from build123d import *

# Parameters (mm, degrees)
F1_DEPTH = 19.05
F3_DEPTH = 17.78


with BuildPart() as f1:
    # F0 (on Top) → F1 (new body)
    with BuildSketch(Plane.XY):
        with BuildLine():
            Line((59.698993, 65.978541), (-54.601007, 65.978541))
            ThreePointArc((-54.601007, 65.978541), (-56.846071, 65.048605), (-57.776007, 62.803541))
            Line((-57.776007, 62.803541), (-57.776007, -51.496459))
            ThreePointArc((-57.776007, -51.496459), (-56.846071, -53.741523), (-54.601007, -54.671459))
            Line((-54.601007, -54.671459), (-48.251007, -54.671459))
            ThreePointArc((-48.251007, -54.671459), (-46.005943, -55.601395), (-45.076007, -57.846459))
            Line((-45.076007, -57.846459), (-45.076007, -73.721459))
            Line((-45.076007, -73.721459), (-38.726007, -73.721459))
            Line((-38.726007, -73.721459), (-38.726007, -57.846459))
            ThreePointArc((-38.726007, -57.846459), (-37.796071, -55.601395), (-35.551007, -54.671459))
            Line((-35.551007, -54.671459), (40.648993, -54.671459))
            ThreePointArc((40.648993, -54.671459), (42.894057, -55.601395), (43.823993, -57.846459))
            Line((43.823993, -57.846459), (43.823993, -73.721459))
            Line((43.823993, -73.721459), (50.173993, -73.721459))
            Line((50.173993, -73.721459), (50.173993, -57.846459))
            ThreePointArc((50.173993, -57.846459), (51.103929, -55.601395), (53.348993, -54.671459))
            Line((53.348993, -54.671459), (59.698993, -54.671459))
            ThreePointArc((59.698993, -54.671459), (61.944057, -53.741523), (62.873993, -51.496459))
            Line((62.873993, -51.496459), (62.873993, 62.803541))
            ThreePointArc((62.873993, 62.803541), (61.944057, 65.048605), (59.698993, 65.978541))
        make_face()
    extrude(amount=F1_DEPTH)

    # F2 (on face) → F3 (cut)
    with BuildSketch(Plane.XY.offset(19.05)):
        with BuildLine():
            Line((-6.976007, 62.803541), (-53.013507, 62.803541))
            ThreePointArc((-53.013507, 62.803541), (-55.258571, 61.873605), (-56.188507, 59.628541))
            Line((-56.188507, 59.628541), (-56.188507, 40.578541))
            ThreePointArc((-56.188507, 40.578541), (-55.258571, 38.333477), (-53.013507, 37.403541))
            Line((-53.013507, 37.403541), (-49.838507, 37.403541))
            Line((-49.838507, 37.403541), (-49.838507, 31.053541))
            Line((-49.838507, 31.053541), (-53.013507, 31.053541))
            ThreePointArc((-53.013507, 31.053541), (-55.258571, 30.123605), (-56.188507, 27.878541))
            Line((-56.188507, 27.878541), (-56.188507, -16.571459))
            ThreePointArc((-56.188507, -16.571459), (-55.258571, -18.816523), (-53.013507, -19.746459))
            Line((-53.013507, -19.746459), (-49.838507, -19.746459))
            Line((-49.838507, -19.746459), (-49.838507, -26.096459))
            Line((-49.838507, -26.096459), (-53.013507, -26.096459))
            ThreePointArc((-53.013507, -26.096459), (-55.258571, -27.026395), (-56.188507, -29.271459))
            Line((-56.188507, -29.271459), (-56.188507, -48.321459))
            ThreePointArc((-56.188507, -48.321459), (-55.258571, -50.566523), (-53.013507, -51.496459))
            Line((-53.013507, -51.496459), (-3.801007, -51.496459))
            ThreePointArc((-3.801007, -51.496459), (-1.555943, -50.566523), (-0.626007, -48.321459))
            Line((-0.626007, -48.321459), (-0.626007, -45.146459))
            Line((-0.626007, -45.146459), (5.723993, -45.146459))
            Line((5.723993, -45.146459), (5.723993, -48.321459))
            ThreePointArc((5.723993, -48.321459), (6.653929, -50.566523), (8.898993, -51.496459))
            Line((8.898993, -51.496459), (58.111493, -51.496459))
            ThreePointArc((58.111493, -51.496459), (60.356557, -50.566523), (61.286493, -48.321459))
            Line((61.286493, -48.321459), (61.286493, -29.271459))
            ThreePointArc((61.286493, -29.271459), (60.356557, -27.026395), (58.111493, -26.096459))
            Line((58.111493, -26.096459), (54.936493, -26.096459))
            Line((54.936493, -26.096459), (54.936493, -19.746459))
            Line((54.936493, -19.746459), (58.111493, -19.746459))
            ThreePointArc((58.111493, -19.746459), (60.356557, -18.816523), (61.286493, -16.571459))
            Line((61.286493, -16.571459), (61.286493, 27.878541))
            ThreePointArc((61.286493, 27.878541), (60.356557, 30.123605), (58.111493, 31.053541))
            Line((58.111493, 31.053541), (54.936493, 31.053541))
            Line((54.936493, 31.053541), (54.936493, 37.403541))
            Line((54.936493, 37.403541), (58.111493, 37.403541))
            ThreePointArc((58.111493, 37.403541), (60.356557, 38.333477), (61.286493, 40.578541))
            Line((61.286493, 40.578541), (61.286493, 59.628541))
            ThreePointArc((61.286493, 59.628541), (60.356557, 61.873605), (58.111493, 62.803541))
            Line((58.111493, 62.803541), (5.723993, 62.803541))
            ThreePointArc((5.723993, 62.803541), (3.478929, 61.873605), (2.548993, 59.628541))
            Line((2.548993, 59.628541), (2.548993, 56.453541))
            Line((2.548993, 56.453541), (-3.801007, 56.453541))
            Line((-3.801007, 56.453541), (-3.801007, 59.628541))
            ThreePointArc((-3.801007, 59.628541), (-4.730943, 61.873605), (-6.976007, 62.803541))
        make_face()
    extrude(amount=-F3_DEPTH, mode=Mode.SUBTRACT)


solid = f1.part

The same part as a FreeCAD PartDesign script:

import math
import FreeCAD as App
import Part
import Sketcher

V = App.Vector
Q = App.Units.Quantity

doc = App.newDocument("Part")
body = doc.addObject("PartDesign::Body", "Body")

# Sketch on XY plane
sketch1 = body.newObject("Sketcher::SketchObject", "Sketch")
sketch1.AttachmentSupport = (doc.getObject("XY_Plane"), [""])
sketch1.MapMode = "FlatFace"
sketch1.addGeometry([
    Part.LineSegment(V(59.7, 66, 0), V(-54.6, 66, 0)),  # 0
    Part.ArcOfCircle(Part.Circle(V(-54.6, 62.8, 0), V(0, 0, 1), 3.2), math.radians(90), math.radians(180)),  # 1
    Part.LineSegment(V(-57.8, 62.8, 0), V(-57.8, -51.5, 0)),  # 2
    Part.ArcOfCircle(Part.Circle(V(-54.6, -51.5, 0), V(0, 0, 1), 3.2), math.radians(-180), math.radians(-90)),  # 3
    Part.LineSegment(V(-54.6, -54.7, 0), V(-48.3, -54.7, 0)),  # 4
    Part.ArcOfCircle(Part.Circle(V(-48.3, -57.8, 0), V(0, 0, 1), 3.2), math.radians(0), math.radians(90)),  # 5
    Part.LineSegment(V(-45.1, -57.8, 0), V(-45.1, -73.7, 0)),  # 6
    Part.LineSegment(V(-45.1, -73.7, 0), V(-38.7, -73.7, 0)),  # 7
    Part.LineSegment(V(-38.7, -73.7, 0), V(-38.7, -57.8, 0)),  # 8
    Part.ArcOfCircle(Part.Circle(V(-35.6, -57.8, 0), V(0, 0, 1), 3.2), math.radians(90), math.radians(180)),  # 9
    Part.LineSegment(V(-35.6, -54.7, 0), V(40.6, -54.7, 0)),  # 10
    Part.ArcOfCircle(Part.Circle(V(40.6, -57.8, 0), V(0, 0, 1), 3.2), math.radians(0), math.radians(90)),  # 11
    Part.LineSegment(V(43.8, -57.8, 0), V(43.8, -73.7, 0)),  # 12
    Part.LineSegment(V(43.8, -73.7, 0), V(50.2, -73.7, 0)),  # 13
    Part.LineSegment(V(50.2, -73.7, 0), V(50.2, -57.8, 0)),  # 14
    Part.ArcOfCircle(Part.Circle(V(53.3, -57.8, 0), V(0, 0, 1), 3.2), math.radians(90), math.radians(180)),  # 15
    Part.LineSegment(V(53.3, -54.7, 0), V(59.7, -54.7, 0)),  # 16
    Part.ArcOfCircle(Part.Circle(V(59.7, -51.5, 0), V(0, 0, 1), 3.2), math.radians(-90), math.radians(0)),  # 17
    Part.LineSegment(V(62.9, -51.5, 0), V(62.9, 62.8, 0)),  # 18
    Part.ArcOfCircle(Part.Circle(V(59.7, 62.8, 0), V(0, 0, 1), 3.2), math.radians(0), math.radians(90)),  # 19
], False)
sketch1.addConstraint([
    Sketcher.Constraint("Tangent", 0, 2, 1, 1),
    Sketcher.Constraint("Tangent", 1, 2, 2, 1),
    Sketcher.Constraint("Tangent", 2, 2, 3, 1),
    Sketcher.Constraint("Tangent", 3, 2, 4, 1),
    Sketcher.Constraint("Tangent", 4, 2, 5, 2),
    Sketcher.Constraint("Tangent", 5, 1, 6, 1),
    Sketcher.Constraint("Coincident", 6, 2, 7, 1),
    Sketcher.Constraint("Coincident", 7, 2, 8, 1),
    Sketcher.Constraint("Tangent", 8, 2, 9, 2),
    Sketcher.Constraint("Tangent", 9, 1, 10, 1),
    Sketcher.Constraint("Tangent", 10, 2, 11, 2),
    Sketcher.Constraint("Tangent", 11, 1, 12, 1),
    Sketcher.Constraint("Coincident", 12, 2, 13, 1),
    Sketcher.Constraint("Coincident", 13, 2, 14, 1),
    Sketcher.Constraint("Tangent", 14, 2, 15, 2),
    Sketcher.Constraint("Tangent", 15, 1, 16, 1),
    Sketcher.Constraint("Tangent", 16, 2, 17, 1),
    Sketcher.Constraint("Tangent", 17, 2, 18, 1),
    Sketcher.Constraint("Tangent", 18, 2, 19, 1),
    Sketcher.Constraint("Tangent", 19, 2, 0, 1),
    Sketcher.Constraint("Horizontal", 0),
    Sketcher.Constraint("Vertical", 2),
    Sketcher.Constraint("Horizontal", 4),
    Sketcher.Constraint("Vertical", 6),
    Sketcher.Constraint("Horizontal", 7),
    Sketcher.Constraint("Vertical", 8),
    Sketcher.Constraint("Horizontal", 10),
    Sketcher.Constraint("Vertical", 12),
    Sketcher.Constraint("Horizontal", 13),
    Sketcher.Constraint("Vertical", 14),
    Sketcher.Constraint("Horizontal", 16),
    Sketcher.Constraint("Vertical", 18),
    Sketcher.Constraint("Equal", 1, 3),
    Sketcher.Constraint("Equal", 3, 5),
    Sketcher.Constraint("Equal", 5, 9),
    Sketcher.Constraint("Equal", 9, 11),
    Sketcher.Constraint("Equal", 11, 15),
    Sketcher.Constraint("Equal", 15, 17),
    Sketcher.Constraint("Equal", 17, 19),
    Sketcher.Constraint("Horizontal", 5, 3, 9, 3),
    Sketcher.Constraint("Horizontal", 11, 3, 15, 3),
    Sketcher.Constraint("Horizontal", 7, 2, 12, 2),
    Sketcher.Constraint("Equal", 4, 7),
    Sketcher.Constraint("Equal", 7, 13),
    Sketcher.Constraint("Equal", 13, 16),
    Sketcher.Constraint("Equal", 0, 2),
    Sketcher.Constraint("DistanceX", 10, 1, 10, 2, Q("3 in")),
    Sketcher.Constraint("DistanceX", 0, 2, 0, 1, Q("4.5 in")),
    Sketcher.Constraint("Radius", 1, Q("0.125 in")),
    Sketcher.Constraint("DistanceY", 6, 2, 6, 1, Q("0.625 in")),
    Sketcher.Constraint("DistanceY", -1, 1, 1, 3, 62.803541),
    Sketcher.Constraint("DistanceX", 1, 3, -1, 1, 54.601007),
])
pad1 = body.newObject("PartDesign::Pad", "Pad")
pad1.Profile = sketch1
pad1.Length = Q("0.75 in")

# Sketch on XY plane
sketch2 = body.newObject("Sketcher::SketchObject", "Sketch001")
sketch2.AttachmentSupport = (doc.getObject("XY_Plane"), [""])
sketch2.MapMode = "FlatFace"
sketch2.AttachmentOffset = App.Placement(V(0, 0, 0.75 * 25.4), App.Rotation())
sketch2.addGeometry([
    Part.LineSegment(V(-7, 62.8, 0), V(-53, 62.8, 0)),  # 0
    Part.ArcOfCircle(Part.Circle(V(-53, 59.6, 0), V(0, 0, 1), 3.2), math.radians(90), math.radians(180)),  # 1
    Part.LineSegment(V(-56.2, 59.6, 0), V(-56.2, 40.6, 0)),  # 2
    Part.ArcOfCircle(Part.Circle(V(-53, 40.6, 0), V(0, 0, 1), 3.2), math.radians(-180), math.radians(-90)),  # 3
    Part.LineSegment(V(-53, 37.4, 0), V(-49.8, 37.4, 0)),  # 4
    Part.LineSegment(V(-49.8, 37.4, 0), V(-49.8, 31.1, 0)),  # 5
    Part.LineSegment(V(-49.8, 31.1, 0), V(-53, 31.1, 0)),  # 6
    Part.ArcOfCircle(Part.Circle(V(-53, 27.9, 0), V(0, 0, 1), 3.2), math.radians(90), math.radians(180)),  # 7
    Part.LineSegment(V(-56.2, 27.9, 0), V(-56.2, -16.6, 0)),  # 8
    Part.ArcOfCircle(Part.Circle(V(-53, -16.6, 0), V(0, 0, 1), 3.2), math.radians(-180), math.radians(-90)),  # 9
    Part.LineSegment(V(-53, -19.7, 0), V(-49.8, -19.7, 0)),  # 10
    Part.LineSegment(V(-49.8, -19.7, 0), V(-49.8, -26.1, 0)),  # 11
    Part.LineSegment(V(-49.8, -26.1, 0), V(-53, -26.1, 0)),  # 12
    Part.ArcOfCircle(Part.Circle(V(-53, -29.3, 0), V(0, 0, 1), 3.2), math.radians(90), math.radians(180)),  # 13
    Part.LineSegment(V(-56.2, -29.3, 0), V(-56.2, -48.3, 0)),  # 14
    Part.ArcOfCircle(Part.Circle(V(-53, -48.3, 0), V(0, 0, 1), 3.2), math.radians(-180), math.radians(-90)),  # 15
    Part.LineSegment(V(-53, -51.5, 0), V(-3.8, -51.5, 0)),  # 16
    Part.ArcOfCircle(Part.Circle(V(-3.8, -48.3, 0), V(0, 0, 1), 3.2), math.radians(-90), math.radians(0)),  # 17
    Part.LineSegment(V(-0.6, -48.3, 0), V(-0.6, -45.1, 0)),  # 18
    Part.LineSegment(V(-0.6, -45.1, 0), V(5.7, -45.1, 0)),  # 19
    Part.LineSegment(V(5.7, -45.1, 0), V(5.7, -48.3, 0)),  # 20
    Part.ArcOfCircle(Part.Circle(V(8.9, -48.3, 0), V(0, 0, 1), 3.2), math.radians(-180), math.radians(-90)),  # 21
    Part.LineSegment(V(8.9, -51.5, 0), V(58.1, -51.5, 0)),  # 22
    Part.ArcOfCircle(Part.Circle(V(58.1, -48.3, 0), V(0, 0, 1), 3.2), math.radians(-90), math.radians(0)),  # 23
    Part.LineSegment(V(61.3, -48.3, 0), V(61.3, -29.3, 0)),  # 24
    Part.ArcOfCircle(Part.Circle(V(58.1, -29.3, 0), V(0, 0, 1), 3.2), math.radians(0), math.radians(90)),  # 25
    Part.LineSegment(V(58.1, -26.1, 0), V(54.9, -26.1, 0)),  # 26
    Part.LineSegment(V(54.9, -26.1, 0), V(54.9, -19.7, 0)),  # 27
    Part.LineSegment(V(54.9, -19.7, 0), V(58.1, -19.7, 0)),  # 28
    Part.ArcOfCircle(Part.Circle(V(58.1, -16.6, 0), V(0, 0, 1), 3.2), math.radians(-90), math.radians(0)),  # 29
    Part.LineSegment(V(61.3, -16.6, 0), V(61.3, 27.9, 0)),  # 30
    Part.ArcOfCircle(Part.Circle(V(58.1, 27.9, 0), V(0, 0, 1), 3.2), math.radians(0), math.radians(90)),  # 31
    Part.LineSegment(V(58.1, 31.1, 0), V(54.9, 31.1, 0)),  # 32
    Part.LineSegment(V(54.9, 31.1, 0), V(54.9, 37.4, 0)),  # 33
    Part.LineSegment(V(54.9, 37.4, 0), V(58.1, 37.4, 0)),  # 34
    Part.ArcOfCircle(Part.Circle(V(58.1, 40.6, 0), V(0, 0, 1), 3.2), math.radians(-90), math.radians(0)),  # 35
    Part.LineSegment(V(61.3, 40.6, 0), V(61.3, 59.6, 0)),  # 36
    Part.ArcOfCircle(Part.Circle(V(58.1, 59.6, 0), V(0, 0, 1), 3.2), math.radians(0), math.radians(90)),  # 37
    Part.LineSegment(V(58.1, 62.8, 0), V(5.7, 62.8, 0)),  # 38
    Part.ArcOfCircle(Part.Circle(V(5.7, 59.6, 0), V(0, 0, 1), 3.2), math.radians(90), math.radians(180)),  # 39
    Part.LineSegment(V(2.5, 59.6, 0), V(2.5, 56.5, 0)),  # 40
    Part.LineSegment(V(2.5, 56.5, 0), V(-3.8, 56.5, 0)),  # 41
    Part.LineSegment(V(-3.8, 56.5, 0), V(-3.8, 59.6, 0)),  # 42
    Part.ArcOfCircle(Part.Circle(V(-7, 59.6, 0), V(0, 0, 1), 3.2), math.radians(0), math.radians(90)),  # 43
], False)
sketch2.addConstraint([
    Sketcher.Constraint("Tangent", 0, 2, 1, 1),
    Sketcher.Constraint("Tangent", 1, 2, 2, 1),
    Sketcher.Constraint("Tangent", 2, 2, 3, 1),
    Sketcher.Constraint("Tangent", 3, 2, 4, 1),
    Sketcher.Constraint("Coincident", 4, 2, 5, 1),
    Sketcher.Constraint("Coincident", 5, 2, 6, 1),
    Sketcher.Constraint("Tangent", 6, 2, 7, 1),
    Sketcher.Constraint("Tangent", 7, 2, 8, 1),
    Sketcher.Constraint("Tangent", 8, 2, 9, 1),
    Sketcher.Constraint("Tangent", 9, 2, 10, 1),
    Sketcher.Constraint("Coincident", 10, 2, 11, 1),
    Sketcher.Constraint("Coincident", 11, 2, 12, 1),
    Sketcher.Constraint("Tangent", 12, 2, 13, 1),
    Sketcher.Constraint("Tangent", 13, 2, 14, 1),
    Sketcher.Constraint("Tangent", 14, 2, 15, 1),
    Sketcher.Constraint("Tangent", 15, 2, 16, 1),
    Sketcher.Constraint("Tangent", 16, 2, 17, 1),
    Sketcher.Constraint("Tangent", 17, 2, 18, 1),
    Sketcher.Constraint("Coincident", 18, 2, 19, 1),
    Sketcher.Constraint("Coincident", 19, 2, 20, 1),
    Sketcher.Constraint("Tangent", 20, 2, 21, 1),
    Sketcher.Constraint("Tangent", 21, 2, 22, 1),
    Sketcher.Constraint("Tangent", 22, 2, 23, 1),
    Sketcher.Constraint("Tangent", 23, 2, 24, 1),
    Sketcher.Constraint("Tangent", 24, 2, 25, 1),
    Sketcher.Constraint("Tangent", 25, 2, 26, 1),
    Sketcher.Constraint("Coincident", 26, 2, 27, 1),
    Sketcher.Constraint("Coincident", 27, 2, 28, 1),
    Sketcher.Constraint("Tangent", 28, 2, 29, 1),
    Sketcher.Constraint("Tangent", 29, 2, 30, 1),
    Sketcher.Constraint("Tangent", 30, 2, 31, 1),
    Sketcher.Constraint("Tangent", 31, 2, 32, 1),
    Sketcher.Constraint("Coincident", 32, 2, 33, 1),
    Sketcher.Constraint("Coincident", 33, 2, 34, 1),
    Sketcher.Constraint("Tangent", 34, 2, 35, 1),
    Sketcher.Constraint("Tangent", 35, 2, 36, 1),
    Sketcher.Constraint("Tangent", 36, 2, 37, 1),
    Sketcher.Constraint("Tangent", 37, 2, 38, 1),
    Sketcher.Constraint("Tangent", 38, 2, 39, 1),
    Sketcher.Constraint("Tangent", 39, 2, 40, 1),
    Sketcher.Constraint("Coincident", 40, 2, 41, 1),
    Sketcher.Constraint("Coincident", 41, 2, 42, 1),
    Sketcher.Constraint("Tangent", 42, 2, 43, 1),
    Sketcher.Constraint("Tangent", 43, 2, 0, 1),
    Sketcher.Constraint("Horizontal", 0),
    Sketcher.Constraint("Vertical", 2),
    Sketcher.Constraint("Horizontal", 4),
    Sketcher.Constraint("Vertical", 5),
    Sketcher.Constraint("Horizontal", 6),
    Sketcher.Constraint("Vertical", 8),
    Sketcher.Constraint("Horizontal", 10),
    Sketcher.Constraint("Vertical", 11),
    Sketcher.Constraint("Horizontal", 12),
    Sketcher.Constraint("Vertical", 14),
    Sketcher.Constraint("Horizontal", 16),
    Sketcher.Constraint("Vertical", 18),
    Sketcher.Constraint("Horizontal", 19),
    Sketcher.Constraint("Vertical", 20),
    Sketcher.Constraint("Horizontal", 22),
    Sketcher.Constraint("Vertical", 24),
    Sketcher.Constraint("Horizontal", 26),
    Sketcher.Constraint("Vertical", 27),
    Sketcher.Constraint("Horizontal", 28),
    Sketcher.Constraint("Vertical", 30),
    Sketcher.Constraint("Horizontal", 32),
    Sketcher.Constraint("Vertical", 33),
    Sketcher.Constraint("Horizontal", 34),
    Sketcher.Constraint("Vertical", 36),
    Sketcher.Constraint("Horizontal", 38),
    Sketcher.Constraint("Vertical", 40),
    Sketcher.Constraint("Horizontal", 41),
    Sketcher.Constraint("Vertical", 42),
    Sketcher.Constraint("Equal", 1, 3),
    Sketcher.Constraint("Equal", 3, 7),
    Sketcher.Constraint("Equal", 7, 9),
    Sketcher.Constraint("Equal", 9, 13),
    Sketcher.Constraint("Equal", 13, 15),
    Sketcher.Constraint("Equal", 15, 17),
    Sketcher.Constraint("Equal", 17, 21),
    Sketcher.Constraint("Equal", 21, 23),
    Sketcher.Constraint("Equal", 23, 25),
    Sketcher.Constraint("Equal", 25, 29),
    Sketcher.Constraint("Equal", 29, 31),
    Sketcher.Constraint("Equal", 31, 35),
    Sketcher.Constraint("Equal", 35, 37),
    Sketcher.Constraint("Equal", 37, 39),
    Sketcher.Constraint("Equal", 39, 43),
    Sketcher.Constraint("Horizontal", 17, 3, 21, 3),
    Sketcher.Constraint("Horizontal", 13, 3, 25, 3),
    Sketcher.Constraint("Horizontal", 9, 3, 29, 3),
    Sketcher.Constraint("Horizontal", 7, 3, 31, 3),
    Sketcher.Constraint("Horizontal", 3, 3, 35, 3),
    Sketcher.Constraint("Horizontal", 1, 3, 37, 3),
    Sketcher.Constraint("Vertical", 3, 3, 7, 3),
    Sketcher.Constraint("Vertical", 9, 3, 13, 3),
    Sketcher.Constraint("Vertical", 25, 3, 29, 3),
    Sketcher.Constraint("Vertical", 31, 3, 35, 3),
    Sketcher.Constraint("Vertical", 5, 2, 10, 2),
    Sketcher.Constraint("Vertical", 39, 3, 19, 2),
    Sketcher.Constraint("Vertical", 27, 2, 32, 2),
    Sketcher.Constraint("Vertical", 16, 2, 41, 2),
    Sketcher.Constraint("Equal", 16, 22),
    Sketcher.Constraint("Equal", 12, 26),
    Sketcher.Constraint("Equal", 41, 5),
    Sketcher.Constraint("Equal", 5, 11),
    Sketcher.Constraint("Equal", 2, 14),
    Sketcher.Constraint("Equal", 34, 18),
    Sketcher.Constraint("Equal", 20, 40),
    Sketcher.Constraint("Radius", 1, Q("0.125 in")),
    Sketcher.Constraint("DistanceY", 9, 3, 1, 3, Q("3 in")),
    Sketcher.Constraint("DistanceY", 15, 2, 12, 2, Q("1 in")),
    Sketcher.Constraint("DistanceX", 19, 1, 19, 2, Q("0.25 in")),
    Sketcher.Constraint("DistanceX", 0, 2, 0, 1, Q("1.8125 in")),
    Sketcher.Constraint("DistanceX", 4, 1, 4, 2, Q("0.125 in")),
    Sketcher.Constraint("DistanceY", -1, 1, 1, 3, 59.628541),
    Sketcher.Constraint("DistanceX", 1, 3, -1, 1, 53.013507),
])
pocket1 = body.newObject("PartDesign::Pocket", "Pocket")
pocket1.Profile = sketch2
pocket1.Length = Q("0.7 in")

doc.recompute()
